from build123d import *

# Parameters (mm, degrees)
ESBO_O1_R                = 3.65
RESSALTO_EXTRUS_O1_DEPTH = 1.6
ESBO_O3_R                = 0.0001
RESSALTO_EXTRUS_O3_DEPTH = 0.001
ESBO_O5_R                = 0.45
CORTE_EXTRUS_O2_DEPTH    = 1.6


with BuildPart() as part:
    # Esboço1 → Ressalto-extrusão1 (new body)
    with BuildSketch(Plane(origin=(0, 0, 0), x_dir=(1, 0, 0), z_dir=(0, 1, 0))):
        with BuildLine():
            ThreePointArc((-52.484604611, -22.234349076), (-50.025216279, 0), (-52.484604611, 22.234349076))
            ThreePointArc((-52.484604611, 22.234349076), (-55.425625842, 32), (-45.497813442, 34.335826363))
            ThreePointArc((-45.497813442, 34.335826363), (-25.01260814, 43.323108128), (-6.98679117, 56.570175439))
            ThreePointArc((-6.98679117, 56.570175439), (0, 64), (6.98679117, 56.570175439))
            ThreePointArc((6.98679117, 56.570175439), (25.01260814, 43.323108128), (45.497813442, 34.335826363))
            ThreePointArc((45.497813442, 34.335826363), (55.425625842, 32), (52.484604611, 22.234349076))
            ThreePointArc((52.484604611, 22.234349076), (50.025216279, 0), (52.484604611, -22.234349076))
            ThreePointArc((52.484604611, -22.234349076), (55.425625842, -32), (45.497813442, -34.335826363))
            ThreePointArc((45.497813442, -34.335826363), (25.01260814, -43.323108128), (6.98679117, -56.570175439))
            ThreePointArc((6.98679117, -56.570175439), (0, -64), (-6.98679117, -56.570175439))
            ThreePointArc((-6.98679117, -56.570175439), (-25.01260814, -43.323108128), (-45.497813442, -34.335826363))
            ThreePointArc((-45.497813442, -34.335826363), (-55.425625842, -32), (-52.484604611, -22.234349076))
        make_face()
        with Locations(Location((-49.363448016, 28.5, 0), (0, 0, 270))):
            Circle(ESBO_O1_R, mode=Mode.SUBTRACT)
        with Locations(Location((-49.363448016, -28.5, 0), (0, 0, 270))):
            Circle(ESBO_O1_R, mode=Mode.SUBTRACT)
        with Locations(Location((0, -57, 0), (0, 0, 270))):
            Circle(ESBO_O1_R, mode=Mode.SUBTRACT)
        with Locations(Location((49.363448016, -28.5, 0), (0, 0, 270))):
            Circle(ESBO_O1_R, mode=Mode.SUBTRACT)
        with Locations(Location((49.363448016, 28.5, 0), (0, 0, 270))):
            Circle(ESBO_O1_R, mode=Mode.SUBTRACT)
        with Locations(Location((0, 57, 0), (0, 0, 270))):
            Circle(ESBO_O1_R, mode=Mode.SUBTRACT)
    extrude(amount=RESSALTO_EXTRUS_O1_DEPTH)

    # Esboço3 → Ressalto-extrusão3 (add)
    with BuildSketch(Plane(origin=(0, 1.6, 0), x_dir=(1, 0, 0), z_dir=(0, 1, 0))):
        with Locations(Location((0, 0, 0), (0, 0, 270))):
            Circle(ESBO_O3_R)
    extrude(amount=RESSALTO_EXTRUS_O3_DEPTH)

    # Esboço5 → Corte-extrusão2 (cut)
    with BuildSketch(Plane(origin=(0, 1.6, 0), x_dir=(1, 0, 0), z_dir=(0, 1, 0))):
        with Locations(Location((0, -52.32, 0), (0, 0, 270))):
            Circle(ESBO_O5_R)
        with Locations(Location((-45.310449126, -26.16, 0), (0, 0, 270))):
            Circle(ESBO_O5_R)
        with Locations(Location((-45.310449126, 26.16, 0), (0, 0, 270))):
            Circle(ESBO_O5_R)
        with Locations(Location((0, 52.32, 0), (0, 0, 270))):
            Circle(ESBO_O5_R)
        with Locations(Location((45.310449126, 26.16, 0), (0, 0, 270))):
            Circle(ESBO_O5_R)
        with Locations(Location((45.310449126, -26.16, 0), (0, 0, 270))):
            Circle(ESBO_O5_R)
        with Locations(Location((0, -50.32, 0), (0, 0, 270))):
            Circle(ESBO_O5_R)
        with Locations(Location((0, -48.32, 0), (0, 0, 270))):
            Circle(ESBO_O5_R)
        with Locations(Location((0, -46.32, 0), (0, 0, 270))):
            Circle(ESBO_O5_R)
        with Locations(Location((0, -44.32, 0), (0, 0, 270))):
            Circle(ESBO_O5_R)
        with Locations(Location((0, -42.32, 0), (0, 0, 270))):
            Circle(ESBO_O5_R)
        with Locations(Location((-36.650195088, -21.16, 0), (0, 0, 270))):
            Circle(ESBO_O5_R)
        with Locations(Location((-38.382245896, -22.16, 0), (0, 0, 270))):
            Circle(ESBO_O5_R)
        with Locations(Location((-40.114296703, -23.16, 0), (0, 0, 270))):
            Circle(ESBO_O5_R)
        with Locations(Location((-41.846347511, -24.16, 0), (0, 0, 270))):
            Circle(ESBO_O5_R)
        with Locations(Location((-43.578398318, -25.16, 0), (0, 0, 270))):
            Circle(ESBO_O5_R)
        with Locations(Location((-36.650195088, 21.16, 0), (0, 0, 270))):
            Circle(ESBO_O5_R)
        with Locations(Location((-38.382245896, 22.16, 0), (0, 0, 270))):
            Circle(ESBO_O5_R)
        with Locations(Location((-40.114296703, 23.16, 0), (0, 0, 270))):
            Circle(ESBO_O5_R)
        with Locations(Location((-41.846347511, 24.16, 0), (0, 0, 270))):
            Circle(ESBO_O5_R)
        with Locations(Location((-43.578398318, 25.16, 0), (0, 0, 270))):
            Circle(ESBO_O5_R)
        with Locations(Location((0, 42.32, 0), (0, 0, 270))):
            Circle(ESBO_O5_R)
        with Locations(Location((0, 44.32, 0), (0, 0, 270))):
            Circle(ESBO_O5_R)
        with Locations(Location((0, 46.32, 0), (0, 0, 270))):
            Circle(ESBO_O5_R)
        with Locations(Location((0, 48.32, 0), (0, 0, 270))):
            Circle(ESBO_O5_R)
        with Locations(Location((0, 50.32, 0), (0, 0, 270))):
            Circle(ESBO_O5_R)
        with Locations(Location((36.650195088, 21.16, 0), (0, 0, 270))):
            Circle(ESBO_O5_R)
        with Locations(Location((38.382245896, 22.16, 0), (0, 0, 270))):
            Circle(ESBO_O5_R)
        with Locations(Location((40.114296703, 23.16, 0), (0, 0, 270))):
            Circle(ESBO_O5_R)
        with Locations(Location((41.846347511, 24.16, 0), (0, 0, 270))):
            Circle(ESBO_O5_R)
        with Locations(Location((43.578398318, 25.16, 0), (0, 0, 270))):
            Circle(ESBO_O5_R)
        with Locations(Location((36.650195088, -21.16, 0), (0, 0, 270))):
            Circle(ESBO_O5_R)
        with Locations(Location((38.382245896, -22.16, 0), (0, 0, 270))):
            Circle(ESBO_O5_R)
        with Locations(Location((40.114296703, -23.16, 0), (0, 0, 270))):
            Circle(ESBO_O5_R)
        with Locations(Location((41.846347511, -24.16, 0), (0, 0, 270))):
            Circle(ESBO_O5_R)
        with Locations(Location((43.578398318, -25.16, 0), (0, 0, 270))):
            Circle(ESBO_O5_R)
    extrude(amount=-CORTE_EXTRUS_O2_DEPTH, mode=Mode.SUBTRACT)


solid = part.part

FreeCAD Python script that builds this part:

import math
import FreeCAD as App
import Part
import Sketcher
from FreeCAD import Vector

doc = App.newDocument("Part")
body = doc.addObject("PartDesign::Body", "Body")

sketch1 = body.newObject("Sketcher::SketchObject", "Sketch")
sketch1.AttachmentSupport = (doc.getObject("XZ_Plane"), [""])
sketch1.MapMode = "FlatFace"
sketch1.addGeometry([
    Part.ArcOfCircle(Part.Circle(Vector(-151.760852, 0, 0), Vector(0, 0, 1), 101.735636), math.radians(-12.623897), math.radians(12.623897)),
    Part.ArcOfCircle(Part.Circle(Vector(-49.363448, 28.5, 0), Vector(0, 0, 1), 7), math.radians(56.479624), math.radians(243.520376)),
    Part.ArcOfCircle(Part.Circle(Vector(-75.880426, 131.428753, 0), Vector(0, 0, 1), 101.735636), math.radians(-72.623897), math.radians(-47.376103)),
    Part.ArcOfCircle(Part.Circle(Vector(0, 57, 0), Vector(0, 0, 1), 7), math.radians(-3.520376), math.radians(183.520376)),
    Part.ArcOfCircle(Part.Circle(Vector(75.880426, 131.428753, 0), Vector(0, 0, 1), 101.735636), math.radians(-132.623897), math.radians(-107.376103)),
    Part.ArcOfCircle(Part.Circle(Vector(49.363448, 28.5, 0), Vector(0, 0, 1), 7), math.radians(-63.520376), math.radians(123.520376)),
    Part.ArcOfCircle(Part.Circle(Vector(151.760852, 0, 0), Vector(0, 0, 1), 101.735636), math.radians(167.376103), math.radians(192.623897)),
    Part.ArcOfCircle(Part.Circle(Vector(49.363448, -28.5, 0), Vector(0, 0, 1), 7), math.radians(-123.520376), math.radians(63.520376)),
    Part.ArcOfCircle(Part.Circle(Vector(75.880426, -131.428753, 0), Vector(0, 0, 1), 101.735636), math.radians(107.376103), math.radians(132.623897)),
    Part.ArcOfCircle(Part.Circle(Vector(0, -57, 0), Vector(0, 0, 1), 7), math.radians(176.479624), math.radians(363.520376)),
    Part.ArcOfCircle(Part.Circle(Vector(-75.880426, -131.428753, 0), Vector(0, 0, 1), 101.735636), math.radians(47.376103), math.radians(72.623897)),
    Part.ArcOfCircle(Part.Circle(Vector(-49.363448, -28.5, 0), Vector(0, 0, 1), 7), math.radians(116.479624), math.radians(303.520376)),
    Part.Circle(Vector(49.363448, 28.5, 0), Vector(0, 0, 1), 3.65),
    Part.Circle(Vector(0, 57, 0), Vector(0, 0, 1), 3.65),
    Part.Circle(Vector(-49.363448, 28.5, 0), Vector(0, 0, 1), 3.65),
    Part.Circle(Vector(49.363448, -28.5, 0), Vector(0, 0, 1), 3.65),
    Part.Circle(Vector(-49.363448, -28.5, 0), Vector(0, 0, 1), 3.65),
    Part.Circle(Vector(0, -57, 0), Vector(0, 0, 1), 3.65),
], False)
sketch1.addConstraint([
    Sketcher.Constraint("Coincident", 0, 2, 1, 2),
    Sketcher.Constraint("Coincident", 1, 1, 2, 1),
    Sketcher.Constraint("Coincident", 2, 2, 3, 2),
    Sketcher.Constraint("Coincident", 3, 1, 4, 1),
    Sketcher.Constraint("Coincident", 4, 2, 5, 2),
    Sketcher.Constraint("Coincident", 5, 1, 6, 1),
    Sketcher.Constraint("Coincident", 6, 2, 7, 2),
    Sketcher.Constraint("Coincident", 7, 1, 8, 1),
    Sketcher.Constraint("Coincident", 8, 2, 9, 2),
    Sketcher.Constraint("Coincident", 9, 1, 10, 1),
    Sketcher.Constraint("Coincident", 10, 2, 11, 2),
    Sketcher.Constraint("Coincident", 11, 1, 0, 1),
    Sketcher.Constraint("Coincident", 12, 3, 5, 3),
    Sketcher.Constraint("Coincident", 13, 3, 3, 3),
    Sketcher.Constraint("Coincident", 14, 3, 1, 3),
    Sketcher.Constraint("Coincident", 15, 3, 7, 3),
    Sketcher.Constraint("Coincident", 16, 3, 11, 3),
    Sketcher.Constraint("Coincident", 17, 3, 9, 3),
    Sketcher.Constraint("Equal", 0, 2),
    Sketcher.Constraint("Equal", 1, 3),
    Sketcher.Constraint("Equal", 2, 4),
    Sketcher.Constraint("Equal", 3, 5),
    Sketcher.Constraint("Equal", 4, 6),
    Sketcher.Constraint("Equal", 5, 7),
    Sketcher.Constraint("Equal", 6, 8),
    Sketcher.Constraint("Equal", 7, 9),
    Sketcher.Constraint("Equal", 8, 10),
    Sketcher.Constraint("Equal", 9, 11),
    Sketcher.Constraint("Equal", 12, 13),
    Sketcher.Constraint("Equal", 13, 14),
    Sketcher.Constraint("Equal", 14, 15),
    Sketcher.Constraint("Equal", 15, 16),
    Sketcher.Constraint("Equal", 16, 17),
    Sketcher.Constraint("Symmetric", 0, 3, 6, 3, -1, 1),
    Sketcher.Constraint("Symmetric", 1, 3, 7, 3, -1, 1),
    Sketcher.Constraint("Symmetric", 2, 3, 8, 3, -1, 1),
    Sketcher.Constraint("Symmetric", 3, 3, 9, 3, -1, 1),
    Sketcher.Constraint("Symmetric", 4, 3, 10, 3, -1, 1),
    Sketcher.Constraint("Symmetric", 5, 3, 11, 3, -1, 1),
    Sketcher.Constraint("Symmetric", 2, 3, 4, 3, -2),
    Sketcher.Constraint("Symmetric", 1, 3, 5, 3, -2),
    Sketcher.Constraint("PointOnObject", 0, 3, -1),
    Sketcher.Constraint("PointOnObject", 3, 3, -2),
    Sketcher.Constraint("Radius", 1, 7.0),
    Sketcher.Constraint("Diameter", 12, 7.3),
    Sketcher.Constraint("DistanceY", -1, 1, 3, 3, 57.0),
    Sketcher.Constraint("DistanceY", 7, 3, 5, 3, 57.0),
    Sketcher.Constraint("Radius", 0, 101.735636),
    Sketcher.Constraint("DistanceX", 0, 3, 5, 3, 201.1243),
    Sketcher.Constraint("DistanceY", 6, 2, 5, 1, 44.468698),
    Sketcher.Constraint("DistanceX", -1, 1, 3, 1, 6.986791),
    Sketcher.Constraint("DistanceX", 2, 3, 4, 3, 151.760852),
])
pad1 = body.newObject("PartDesign::Pad", "Pad")
pad1.Profile = sketch1
pad1.Length = 1.6
pad1.Reversed = True

sketch2 = body.newObject("Sketcher::SketchObject", "Sketch001")
sketch2.AttachmentSupport = (doc.getObject("XZ_Plane"), [""])
sketch2.MapMode = "FlatFace"
sketch2.AttachmentOffset = App.Placement(Vector(0, 0, -1.6), App.Rotation())
sketch2.addGeometry(Part.Circle(Vector(0, 0, 0), Vector(0, 0, 1), 0.0001), False)
sketch2.addConstraint([
    Sketcher.Constraint("Coincident", 0, 3, -1, 1),
    Sketcher.Constraint("Diameter", 0, 0.0002),
])
pad2 = body.newObject("PartDesign::Pad", "Pad001")
pad2.Profile = sketch2
pad2.Length = 0.001
pad2.Reversed = True

sketch3 = body.newObject("Sketcher::SketchObject", "Sketch002")
sketch3.AttachmentSupport = (doc.getObject("XZ_Plane"), [""])
sketch3.MapMode = "FlatFace"
sketch3.AttachmentOffset = App.Placement(Vector(0, 0, -1.6), App.Rotation())
sketch3.addGeometry([
    Part.Circle(Vector(0, 52.32, 0), Vector(0, 0, 1), 0.45),
    Part.Circle(Vector(-45.310449, 26.16, 0), Vector(0, 0, 1), 0.45),
    Part.Circle(Vector(-45.310449, -26.16, 0), Vector(0, 0, 1), 0.45),
    Part.Circle(Vector(0, -52.32, 0), Vector(0, 0, 1), 0.45),
    Part.Circle(Vector(45.310449, -26.16, 0), Vector(0, 0, 1), 0.45),
    Part.Circle(Vector(45.310449, 26.16, 0), Vector(0, 0, 1), 0.45),
    Part.Circle(Vector(0, 50.32, 0), Vector(0, 0, 1), 0.45),
    Part.Circle(Vector(0, 48.32, 0), Vector(0, 0, 1), 0.45),
    Part.Circle(Vector(0, 46.32, 0), Vector(0, 0, 1), 0.45),
    Part.Circle(Vector(0, 44.32, 0), Vector(0, 0, 1), 0.45),
    Part.Circle(Vector(0, 42.32, 0), Vector(0, 0, 1), 0.45),
    Part.Circle(Vector(-36.650195, 21.16, 0), Vector(0, 0, 1), 0.45),
    Part.Circle(Vector(-38.382246, 22.16, 0), Vector(0, 0, 1), 0.45),
    Part.Circle(Vector(-40.114297, 23.16, 0), Vector(0, 0, 1), 0.45),
    Part.Circle(Vector(-41.846348, 24.16, 0), Vector(0, 0, 1), 0.45),
    Part.Circle(Vector(-43.578398, 25.16, 0), Vector(0, 0, 1), 0.45),
    Part.Circle(Vector(-36.650195, -21.16, 0), Vector(0, 0, 1), 0.45),
    Part.Circle(Vector(-38.382246, -22.16, 0), Vector(0, 0, 1), 0.45),
    Part.Circle(Vector(-40.114297, -23.16, 0), Vector(0, 0, 1), 0.45),
    Part.Circle(Vector(-41.846348, -24.16, 0), Vector(0, 0, 1), 0.45),
    Part.Circle(Vector(-43.578398, -25.16, 0), Vector(0, 0, 1), 0.45),
    Part.Circle(Vector(0, -42.32, 0), Vector(0, 0, 1), 0.45),
    Part.Circle(Vector(0, -44.32, 0), Vector(0, 0, 1), 0.45),
    Part.Circle(Vector(0, -46.32, 0), Vector(0, 0, 1), 0.45),
    Part.Circle(Vector(0, -48.32, 0), Vector(0, 0, 1), 0.45),
    Part.Circle(Vector(0, -50.32, 0), Vector(0, 0, 1), 0.45),
    Part.Circle(Vector(36.650195, -21.16, 0), Vector(0, 0, 1), 0.45),
    Part.Circle(Vector(38.382246, -22.16, 0), Vector(0, 0, 1), 0.45),
    Part.Circle(Vector(40.114297, -23.16, 0), Vector(0, 0, 1), 0.45),
    Part.Circle(Vector(41.846348, -24.16, 0), Vector(0, 0, 1), 0.45),
    Part.Circle(Vector(43.578398, -25.16, 0), Vector(0, 0, 1), 0.45),
    Part.Circle(Vector(36.650195, 21.16, 0), Vector(0, 0, 1), 0.45),
    Part.Circle(Vector(38.382246, 22.16, 0), Vector(0, 0, 1), 0.45),
    Part.Circle(Vector(40.114297, 23.16, 0), Vector(0, 0, 1), 0.45),
    Part.Circle(Vector(41.846348, 24.16, 0), Vector(0, 0, 1), 0.45),
    Part.Circle(Vector(43.578398, 25.16, 0), Vector(0, 0, 1), 0.45),
], False)
sketch3.addConstraint([
    Sketcher.Constraint("Equal", 0, 1),
    Sketcher.Constraint("Equal", 1, 2),
    Sketcher.Constraint("Equal", 2, 3),
    Sketcher.Constraint("Equal", 3, 4),
    Sketcher.Constraint("Equal", 4, 5),
    Sketcher.Constraint("Equal", 5, 6),
    Sketcher.Constraint("Equal", 6, 7),
    Sketcher.Constraint("Equal", 7, 8),
    Sketcher.Constraint("Equal", 8, 9),
    Sketcher.Constraint("Equal", 9, 10),
    Sketcher.Constraint("Equal", 10, 11),
    Sketcher.Constraint("Equal", 11, 12),
    Sketcher.Constraint("Equal", 12, 13),
    Sketcher.Constraint("Equal", 13, 14),
    Sketcher.Constraint("Equal", 14, 15),
    Sketcher.Constraint("Equal", 15, 16),
    Sketcher.Constraint("Equal", 16, 17),
    Sketcher.Constraint("Equal", 17, 18),
    Sketcher.Constraint("Equal", 18, 19),
    Sketcher.Constraint("Equal", 19, 20),
    Sketcher.Constraint("Equal", 20, 21),
    Sketcher.Constraint("Equal", 21, 22),
    Sketcher.Constraint("Equal", 22, 23),
    Sketcher.Constraint("Equal", 23, 24),
    Sketcher.Constraint("Equal", 24, 25),
    Sketcher.Constraint("Equal", 25, 26),
    Sketcher.Constraint("Equal", 26, 27),
    Sketcher.Constraint("Equal", 27, 28),
    Sketcher.Constraint("Equal", 28, 29),
    Sketcher.Constraint("Equal", 29, 30),
    Sketcher.Constraint("Equal", 30, 31),
    Sketcher.Constraint("Equal", 31, 32),
    Sketcher.Constraint("Equal", 32, 33),
    Sketcher.Constraint("Equal", 33, 34),
    Sketcher.Constraint("Equal", 34, 35),
    Sketcher.Constraint("Symmetric", 0, 3, 3, 3, -1, 1),
    Sketcher.Constraint("Symmetric", 1, 3, 4, 3, -1, 1),
    Sketcher.Constraint("Symmetric", 2, 3, 5, 3, -1, 1),
    Sketcher.Constraint("Symmetric", 10, 3, 21, 3, -1, 1),
    Sketcher.Constraint("Symmetric", 9, 3, 22, 3, -1, 1),
    Sketcher.Constraint("Symmetric", 8, 3, 23, 3, -1, 1),
    Sketcher.Constraint("Symmetric", 7, 3, 24, 3, -1, 1),
    Sketcher.Constraint("Symmetric", 6, 3, 25, 3, -1, 1),
    Sketcher.Constraint("Symmetric", 11, 3, 26, 3, -1, 1),
    Sketcher.Constraint("Symmetric", 12, 3, 27, 3, -1, 1),
    Sketcher.Constraint("Symmetric", 13, 3, 28, 3, -1, 1),
    Sketcher.Constraint("Symmetric", 14, 3, 29, 3, -1, 1),
    Sketcher.Constraint("Symmetric", 15, 3, 30, 3, -1, 1),
    Sketcher.Constraint("Symmetric", 16, 3, 31, 3, -1, 1),
    Sketcher.Constraint("Symmetric", 17, 3, 32, 3, -1, 1),
    Sketcher.Constraint("Symmetric", 18, 3, 33, 3, -1, 1),
    Sketcher.Constraint("Symmetric", 19, 3, 34, 3, -1, 1),
    Sketcher.Constraint("Symmetric", 20, 3, 35, 3, -1, 1),
    Sketcher.Constraint("Symmetric", 2, 3, 4, 3, -2),
    Sketcher.Constraint("Symmetric", 16, 3, 26, 3, -2),
    Sketcher.Constraint("Symmetric", 17, 3, 27, 3, -2),
    Sketcher.Constraint("Symmetric", 18, 3, 28, 3, -2),
    Sketcher.Constraint("Symmetric", 19, 3, 29, 3, -2),
    Sketcher.Constraint("Symmetric", 20, 3, 30, 3, -2),
    Sketcher.Constraint("PointOnObject", 0, 3, -2),
    Sketcher.Constraint("PointOnObject", 6, 3, -2),
    Sketcher.Constraint("PointOnObject", 7, 3, -2),
    Sketcher.Constraint("PointOnObject", 8, 3, -2),
    Sketcher.Constraint("PointOnObject", 9, 3, -2),
    Sketcher.Constraint("PointOnObject", 10, 3, -2),
    Sketcher.Constraint("Diameter", 0, 0.9),
    Sketcher.Constraint("DistanceY", 6, 3, 0, 3, 2.0),
    Sketcher.Constraint("DistanceY", 7, 3, 6, 3, 2.0),
    Sketcher.Constraint("DistanceY", 8, 3, 7, 3, 2.0),
    Sketcher.Constraint("DistanceY", 9, 3, 8, 3, 2.0),
    Sketcher.Constraint("DistanceY", 10, 3, 9, 3, 2.0),
    Sketcher.Constraint("DistanceY", 11, 3, 1, 3, 5.0),
    Sketcher.Constraint("DistanceY", 11, 3, 12, 3, 1.0),
    Sketcher.Constraint("DistanceY", 12, 3, 13, 3, 1.0),
    Sketcher.Constraint("DistanceY", 13, 3, 14, 3, 1.0),
    Sketcher.Constraint("DistanceY", 14, 3, 15, 3, 1.0),
    Sketcher.Constraint("DistanceY", -1, 1, 0, 3, 52.32),
    Sketcher.Constraint("DistanceY", -1, 1, 1, 3, 26.16),
    Sketcher.Constraint("DistanceX", 15, 3, -1, 1, 43.578398),
    Sketcher.Constraint("DistanceX", 2, 3, 4, 3, 90.620898),
    Sketcher.Constraint("DistanceX", 13, 3, 11, 3, 3.464102),
    Sketcher.Constraint("DistanceX", 14, 3, 12, 3, 3.464102),
    Sketcher.Constraint("DistanceX", 1, 3, 14, 3, 3.464102),
    Sketcher.Constraint("DistanceX", 15, 3, 13, 3, 3.464102),
])
pocket1 = body.newObject("PartDesign::Pocket", "Pocket")
pocket1.Profile = sketch3
pocket1.Length = 1.6
pocket1.Reversed = True

doc.recompute()
